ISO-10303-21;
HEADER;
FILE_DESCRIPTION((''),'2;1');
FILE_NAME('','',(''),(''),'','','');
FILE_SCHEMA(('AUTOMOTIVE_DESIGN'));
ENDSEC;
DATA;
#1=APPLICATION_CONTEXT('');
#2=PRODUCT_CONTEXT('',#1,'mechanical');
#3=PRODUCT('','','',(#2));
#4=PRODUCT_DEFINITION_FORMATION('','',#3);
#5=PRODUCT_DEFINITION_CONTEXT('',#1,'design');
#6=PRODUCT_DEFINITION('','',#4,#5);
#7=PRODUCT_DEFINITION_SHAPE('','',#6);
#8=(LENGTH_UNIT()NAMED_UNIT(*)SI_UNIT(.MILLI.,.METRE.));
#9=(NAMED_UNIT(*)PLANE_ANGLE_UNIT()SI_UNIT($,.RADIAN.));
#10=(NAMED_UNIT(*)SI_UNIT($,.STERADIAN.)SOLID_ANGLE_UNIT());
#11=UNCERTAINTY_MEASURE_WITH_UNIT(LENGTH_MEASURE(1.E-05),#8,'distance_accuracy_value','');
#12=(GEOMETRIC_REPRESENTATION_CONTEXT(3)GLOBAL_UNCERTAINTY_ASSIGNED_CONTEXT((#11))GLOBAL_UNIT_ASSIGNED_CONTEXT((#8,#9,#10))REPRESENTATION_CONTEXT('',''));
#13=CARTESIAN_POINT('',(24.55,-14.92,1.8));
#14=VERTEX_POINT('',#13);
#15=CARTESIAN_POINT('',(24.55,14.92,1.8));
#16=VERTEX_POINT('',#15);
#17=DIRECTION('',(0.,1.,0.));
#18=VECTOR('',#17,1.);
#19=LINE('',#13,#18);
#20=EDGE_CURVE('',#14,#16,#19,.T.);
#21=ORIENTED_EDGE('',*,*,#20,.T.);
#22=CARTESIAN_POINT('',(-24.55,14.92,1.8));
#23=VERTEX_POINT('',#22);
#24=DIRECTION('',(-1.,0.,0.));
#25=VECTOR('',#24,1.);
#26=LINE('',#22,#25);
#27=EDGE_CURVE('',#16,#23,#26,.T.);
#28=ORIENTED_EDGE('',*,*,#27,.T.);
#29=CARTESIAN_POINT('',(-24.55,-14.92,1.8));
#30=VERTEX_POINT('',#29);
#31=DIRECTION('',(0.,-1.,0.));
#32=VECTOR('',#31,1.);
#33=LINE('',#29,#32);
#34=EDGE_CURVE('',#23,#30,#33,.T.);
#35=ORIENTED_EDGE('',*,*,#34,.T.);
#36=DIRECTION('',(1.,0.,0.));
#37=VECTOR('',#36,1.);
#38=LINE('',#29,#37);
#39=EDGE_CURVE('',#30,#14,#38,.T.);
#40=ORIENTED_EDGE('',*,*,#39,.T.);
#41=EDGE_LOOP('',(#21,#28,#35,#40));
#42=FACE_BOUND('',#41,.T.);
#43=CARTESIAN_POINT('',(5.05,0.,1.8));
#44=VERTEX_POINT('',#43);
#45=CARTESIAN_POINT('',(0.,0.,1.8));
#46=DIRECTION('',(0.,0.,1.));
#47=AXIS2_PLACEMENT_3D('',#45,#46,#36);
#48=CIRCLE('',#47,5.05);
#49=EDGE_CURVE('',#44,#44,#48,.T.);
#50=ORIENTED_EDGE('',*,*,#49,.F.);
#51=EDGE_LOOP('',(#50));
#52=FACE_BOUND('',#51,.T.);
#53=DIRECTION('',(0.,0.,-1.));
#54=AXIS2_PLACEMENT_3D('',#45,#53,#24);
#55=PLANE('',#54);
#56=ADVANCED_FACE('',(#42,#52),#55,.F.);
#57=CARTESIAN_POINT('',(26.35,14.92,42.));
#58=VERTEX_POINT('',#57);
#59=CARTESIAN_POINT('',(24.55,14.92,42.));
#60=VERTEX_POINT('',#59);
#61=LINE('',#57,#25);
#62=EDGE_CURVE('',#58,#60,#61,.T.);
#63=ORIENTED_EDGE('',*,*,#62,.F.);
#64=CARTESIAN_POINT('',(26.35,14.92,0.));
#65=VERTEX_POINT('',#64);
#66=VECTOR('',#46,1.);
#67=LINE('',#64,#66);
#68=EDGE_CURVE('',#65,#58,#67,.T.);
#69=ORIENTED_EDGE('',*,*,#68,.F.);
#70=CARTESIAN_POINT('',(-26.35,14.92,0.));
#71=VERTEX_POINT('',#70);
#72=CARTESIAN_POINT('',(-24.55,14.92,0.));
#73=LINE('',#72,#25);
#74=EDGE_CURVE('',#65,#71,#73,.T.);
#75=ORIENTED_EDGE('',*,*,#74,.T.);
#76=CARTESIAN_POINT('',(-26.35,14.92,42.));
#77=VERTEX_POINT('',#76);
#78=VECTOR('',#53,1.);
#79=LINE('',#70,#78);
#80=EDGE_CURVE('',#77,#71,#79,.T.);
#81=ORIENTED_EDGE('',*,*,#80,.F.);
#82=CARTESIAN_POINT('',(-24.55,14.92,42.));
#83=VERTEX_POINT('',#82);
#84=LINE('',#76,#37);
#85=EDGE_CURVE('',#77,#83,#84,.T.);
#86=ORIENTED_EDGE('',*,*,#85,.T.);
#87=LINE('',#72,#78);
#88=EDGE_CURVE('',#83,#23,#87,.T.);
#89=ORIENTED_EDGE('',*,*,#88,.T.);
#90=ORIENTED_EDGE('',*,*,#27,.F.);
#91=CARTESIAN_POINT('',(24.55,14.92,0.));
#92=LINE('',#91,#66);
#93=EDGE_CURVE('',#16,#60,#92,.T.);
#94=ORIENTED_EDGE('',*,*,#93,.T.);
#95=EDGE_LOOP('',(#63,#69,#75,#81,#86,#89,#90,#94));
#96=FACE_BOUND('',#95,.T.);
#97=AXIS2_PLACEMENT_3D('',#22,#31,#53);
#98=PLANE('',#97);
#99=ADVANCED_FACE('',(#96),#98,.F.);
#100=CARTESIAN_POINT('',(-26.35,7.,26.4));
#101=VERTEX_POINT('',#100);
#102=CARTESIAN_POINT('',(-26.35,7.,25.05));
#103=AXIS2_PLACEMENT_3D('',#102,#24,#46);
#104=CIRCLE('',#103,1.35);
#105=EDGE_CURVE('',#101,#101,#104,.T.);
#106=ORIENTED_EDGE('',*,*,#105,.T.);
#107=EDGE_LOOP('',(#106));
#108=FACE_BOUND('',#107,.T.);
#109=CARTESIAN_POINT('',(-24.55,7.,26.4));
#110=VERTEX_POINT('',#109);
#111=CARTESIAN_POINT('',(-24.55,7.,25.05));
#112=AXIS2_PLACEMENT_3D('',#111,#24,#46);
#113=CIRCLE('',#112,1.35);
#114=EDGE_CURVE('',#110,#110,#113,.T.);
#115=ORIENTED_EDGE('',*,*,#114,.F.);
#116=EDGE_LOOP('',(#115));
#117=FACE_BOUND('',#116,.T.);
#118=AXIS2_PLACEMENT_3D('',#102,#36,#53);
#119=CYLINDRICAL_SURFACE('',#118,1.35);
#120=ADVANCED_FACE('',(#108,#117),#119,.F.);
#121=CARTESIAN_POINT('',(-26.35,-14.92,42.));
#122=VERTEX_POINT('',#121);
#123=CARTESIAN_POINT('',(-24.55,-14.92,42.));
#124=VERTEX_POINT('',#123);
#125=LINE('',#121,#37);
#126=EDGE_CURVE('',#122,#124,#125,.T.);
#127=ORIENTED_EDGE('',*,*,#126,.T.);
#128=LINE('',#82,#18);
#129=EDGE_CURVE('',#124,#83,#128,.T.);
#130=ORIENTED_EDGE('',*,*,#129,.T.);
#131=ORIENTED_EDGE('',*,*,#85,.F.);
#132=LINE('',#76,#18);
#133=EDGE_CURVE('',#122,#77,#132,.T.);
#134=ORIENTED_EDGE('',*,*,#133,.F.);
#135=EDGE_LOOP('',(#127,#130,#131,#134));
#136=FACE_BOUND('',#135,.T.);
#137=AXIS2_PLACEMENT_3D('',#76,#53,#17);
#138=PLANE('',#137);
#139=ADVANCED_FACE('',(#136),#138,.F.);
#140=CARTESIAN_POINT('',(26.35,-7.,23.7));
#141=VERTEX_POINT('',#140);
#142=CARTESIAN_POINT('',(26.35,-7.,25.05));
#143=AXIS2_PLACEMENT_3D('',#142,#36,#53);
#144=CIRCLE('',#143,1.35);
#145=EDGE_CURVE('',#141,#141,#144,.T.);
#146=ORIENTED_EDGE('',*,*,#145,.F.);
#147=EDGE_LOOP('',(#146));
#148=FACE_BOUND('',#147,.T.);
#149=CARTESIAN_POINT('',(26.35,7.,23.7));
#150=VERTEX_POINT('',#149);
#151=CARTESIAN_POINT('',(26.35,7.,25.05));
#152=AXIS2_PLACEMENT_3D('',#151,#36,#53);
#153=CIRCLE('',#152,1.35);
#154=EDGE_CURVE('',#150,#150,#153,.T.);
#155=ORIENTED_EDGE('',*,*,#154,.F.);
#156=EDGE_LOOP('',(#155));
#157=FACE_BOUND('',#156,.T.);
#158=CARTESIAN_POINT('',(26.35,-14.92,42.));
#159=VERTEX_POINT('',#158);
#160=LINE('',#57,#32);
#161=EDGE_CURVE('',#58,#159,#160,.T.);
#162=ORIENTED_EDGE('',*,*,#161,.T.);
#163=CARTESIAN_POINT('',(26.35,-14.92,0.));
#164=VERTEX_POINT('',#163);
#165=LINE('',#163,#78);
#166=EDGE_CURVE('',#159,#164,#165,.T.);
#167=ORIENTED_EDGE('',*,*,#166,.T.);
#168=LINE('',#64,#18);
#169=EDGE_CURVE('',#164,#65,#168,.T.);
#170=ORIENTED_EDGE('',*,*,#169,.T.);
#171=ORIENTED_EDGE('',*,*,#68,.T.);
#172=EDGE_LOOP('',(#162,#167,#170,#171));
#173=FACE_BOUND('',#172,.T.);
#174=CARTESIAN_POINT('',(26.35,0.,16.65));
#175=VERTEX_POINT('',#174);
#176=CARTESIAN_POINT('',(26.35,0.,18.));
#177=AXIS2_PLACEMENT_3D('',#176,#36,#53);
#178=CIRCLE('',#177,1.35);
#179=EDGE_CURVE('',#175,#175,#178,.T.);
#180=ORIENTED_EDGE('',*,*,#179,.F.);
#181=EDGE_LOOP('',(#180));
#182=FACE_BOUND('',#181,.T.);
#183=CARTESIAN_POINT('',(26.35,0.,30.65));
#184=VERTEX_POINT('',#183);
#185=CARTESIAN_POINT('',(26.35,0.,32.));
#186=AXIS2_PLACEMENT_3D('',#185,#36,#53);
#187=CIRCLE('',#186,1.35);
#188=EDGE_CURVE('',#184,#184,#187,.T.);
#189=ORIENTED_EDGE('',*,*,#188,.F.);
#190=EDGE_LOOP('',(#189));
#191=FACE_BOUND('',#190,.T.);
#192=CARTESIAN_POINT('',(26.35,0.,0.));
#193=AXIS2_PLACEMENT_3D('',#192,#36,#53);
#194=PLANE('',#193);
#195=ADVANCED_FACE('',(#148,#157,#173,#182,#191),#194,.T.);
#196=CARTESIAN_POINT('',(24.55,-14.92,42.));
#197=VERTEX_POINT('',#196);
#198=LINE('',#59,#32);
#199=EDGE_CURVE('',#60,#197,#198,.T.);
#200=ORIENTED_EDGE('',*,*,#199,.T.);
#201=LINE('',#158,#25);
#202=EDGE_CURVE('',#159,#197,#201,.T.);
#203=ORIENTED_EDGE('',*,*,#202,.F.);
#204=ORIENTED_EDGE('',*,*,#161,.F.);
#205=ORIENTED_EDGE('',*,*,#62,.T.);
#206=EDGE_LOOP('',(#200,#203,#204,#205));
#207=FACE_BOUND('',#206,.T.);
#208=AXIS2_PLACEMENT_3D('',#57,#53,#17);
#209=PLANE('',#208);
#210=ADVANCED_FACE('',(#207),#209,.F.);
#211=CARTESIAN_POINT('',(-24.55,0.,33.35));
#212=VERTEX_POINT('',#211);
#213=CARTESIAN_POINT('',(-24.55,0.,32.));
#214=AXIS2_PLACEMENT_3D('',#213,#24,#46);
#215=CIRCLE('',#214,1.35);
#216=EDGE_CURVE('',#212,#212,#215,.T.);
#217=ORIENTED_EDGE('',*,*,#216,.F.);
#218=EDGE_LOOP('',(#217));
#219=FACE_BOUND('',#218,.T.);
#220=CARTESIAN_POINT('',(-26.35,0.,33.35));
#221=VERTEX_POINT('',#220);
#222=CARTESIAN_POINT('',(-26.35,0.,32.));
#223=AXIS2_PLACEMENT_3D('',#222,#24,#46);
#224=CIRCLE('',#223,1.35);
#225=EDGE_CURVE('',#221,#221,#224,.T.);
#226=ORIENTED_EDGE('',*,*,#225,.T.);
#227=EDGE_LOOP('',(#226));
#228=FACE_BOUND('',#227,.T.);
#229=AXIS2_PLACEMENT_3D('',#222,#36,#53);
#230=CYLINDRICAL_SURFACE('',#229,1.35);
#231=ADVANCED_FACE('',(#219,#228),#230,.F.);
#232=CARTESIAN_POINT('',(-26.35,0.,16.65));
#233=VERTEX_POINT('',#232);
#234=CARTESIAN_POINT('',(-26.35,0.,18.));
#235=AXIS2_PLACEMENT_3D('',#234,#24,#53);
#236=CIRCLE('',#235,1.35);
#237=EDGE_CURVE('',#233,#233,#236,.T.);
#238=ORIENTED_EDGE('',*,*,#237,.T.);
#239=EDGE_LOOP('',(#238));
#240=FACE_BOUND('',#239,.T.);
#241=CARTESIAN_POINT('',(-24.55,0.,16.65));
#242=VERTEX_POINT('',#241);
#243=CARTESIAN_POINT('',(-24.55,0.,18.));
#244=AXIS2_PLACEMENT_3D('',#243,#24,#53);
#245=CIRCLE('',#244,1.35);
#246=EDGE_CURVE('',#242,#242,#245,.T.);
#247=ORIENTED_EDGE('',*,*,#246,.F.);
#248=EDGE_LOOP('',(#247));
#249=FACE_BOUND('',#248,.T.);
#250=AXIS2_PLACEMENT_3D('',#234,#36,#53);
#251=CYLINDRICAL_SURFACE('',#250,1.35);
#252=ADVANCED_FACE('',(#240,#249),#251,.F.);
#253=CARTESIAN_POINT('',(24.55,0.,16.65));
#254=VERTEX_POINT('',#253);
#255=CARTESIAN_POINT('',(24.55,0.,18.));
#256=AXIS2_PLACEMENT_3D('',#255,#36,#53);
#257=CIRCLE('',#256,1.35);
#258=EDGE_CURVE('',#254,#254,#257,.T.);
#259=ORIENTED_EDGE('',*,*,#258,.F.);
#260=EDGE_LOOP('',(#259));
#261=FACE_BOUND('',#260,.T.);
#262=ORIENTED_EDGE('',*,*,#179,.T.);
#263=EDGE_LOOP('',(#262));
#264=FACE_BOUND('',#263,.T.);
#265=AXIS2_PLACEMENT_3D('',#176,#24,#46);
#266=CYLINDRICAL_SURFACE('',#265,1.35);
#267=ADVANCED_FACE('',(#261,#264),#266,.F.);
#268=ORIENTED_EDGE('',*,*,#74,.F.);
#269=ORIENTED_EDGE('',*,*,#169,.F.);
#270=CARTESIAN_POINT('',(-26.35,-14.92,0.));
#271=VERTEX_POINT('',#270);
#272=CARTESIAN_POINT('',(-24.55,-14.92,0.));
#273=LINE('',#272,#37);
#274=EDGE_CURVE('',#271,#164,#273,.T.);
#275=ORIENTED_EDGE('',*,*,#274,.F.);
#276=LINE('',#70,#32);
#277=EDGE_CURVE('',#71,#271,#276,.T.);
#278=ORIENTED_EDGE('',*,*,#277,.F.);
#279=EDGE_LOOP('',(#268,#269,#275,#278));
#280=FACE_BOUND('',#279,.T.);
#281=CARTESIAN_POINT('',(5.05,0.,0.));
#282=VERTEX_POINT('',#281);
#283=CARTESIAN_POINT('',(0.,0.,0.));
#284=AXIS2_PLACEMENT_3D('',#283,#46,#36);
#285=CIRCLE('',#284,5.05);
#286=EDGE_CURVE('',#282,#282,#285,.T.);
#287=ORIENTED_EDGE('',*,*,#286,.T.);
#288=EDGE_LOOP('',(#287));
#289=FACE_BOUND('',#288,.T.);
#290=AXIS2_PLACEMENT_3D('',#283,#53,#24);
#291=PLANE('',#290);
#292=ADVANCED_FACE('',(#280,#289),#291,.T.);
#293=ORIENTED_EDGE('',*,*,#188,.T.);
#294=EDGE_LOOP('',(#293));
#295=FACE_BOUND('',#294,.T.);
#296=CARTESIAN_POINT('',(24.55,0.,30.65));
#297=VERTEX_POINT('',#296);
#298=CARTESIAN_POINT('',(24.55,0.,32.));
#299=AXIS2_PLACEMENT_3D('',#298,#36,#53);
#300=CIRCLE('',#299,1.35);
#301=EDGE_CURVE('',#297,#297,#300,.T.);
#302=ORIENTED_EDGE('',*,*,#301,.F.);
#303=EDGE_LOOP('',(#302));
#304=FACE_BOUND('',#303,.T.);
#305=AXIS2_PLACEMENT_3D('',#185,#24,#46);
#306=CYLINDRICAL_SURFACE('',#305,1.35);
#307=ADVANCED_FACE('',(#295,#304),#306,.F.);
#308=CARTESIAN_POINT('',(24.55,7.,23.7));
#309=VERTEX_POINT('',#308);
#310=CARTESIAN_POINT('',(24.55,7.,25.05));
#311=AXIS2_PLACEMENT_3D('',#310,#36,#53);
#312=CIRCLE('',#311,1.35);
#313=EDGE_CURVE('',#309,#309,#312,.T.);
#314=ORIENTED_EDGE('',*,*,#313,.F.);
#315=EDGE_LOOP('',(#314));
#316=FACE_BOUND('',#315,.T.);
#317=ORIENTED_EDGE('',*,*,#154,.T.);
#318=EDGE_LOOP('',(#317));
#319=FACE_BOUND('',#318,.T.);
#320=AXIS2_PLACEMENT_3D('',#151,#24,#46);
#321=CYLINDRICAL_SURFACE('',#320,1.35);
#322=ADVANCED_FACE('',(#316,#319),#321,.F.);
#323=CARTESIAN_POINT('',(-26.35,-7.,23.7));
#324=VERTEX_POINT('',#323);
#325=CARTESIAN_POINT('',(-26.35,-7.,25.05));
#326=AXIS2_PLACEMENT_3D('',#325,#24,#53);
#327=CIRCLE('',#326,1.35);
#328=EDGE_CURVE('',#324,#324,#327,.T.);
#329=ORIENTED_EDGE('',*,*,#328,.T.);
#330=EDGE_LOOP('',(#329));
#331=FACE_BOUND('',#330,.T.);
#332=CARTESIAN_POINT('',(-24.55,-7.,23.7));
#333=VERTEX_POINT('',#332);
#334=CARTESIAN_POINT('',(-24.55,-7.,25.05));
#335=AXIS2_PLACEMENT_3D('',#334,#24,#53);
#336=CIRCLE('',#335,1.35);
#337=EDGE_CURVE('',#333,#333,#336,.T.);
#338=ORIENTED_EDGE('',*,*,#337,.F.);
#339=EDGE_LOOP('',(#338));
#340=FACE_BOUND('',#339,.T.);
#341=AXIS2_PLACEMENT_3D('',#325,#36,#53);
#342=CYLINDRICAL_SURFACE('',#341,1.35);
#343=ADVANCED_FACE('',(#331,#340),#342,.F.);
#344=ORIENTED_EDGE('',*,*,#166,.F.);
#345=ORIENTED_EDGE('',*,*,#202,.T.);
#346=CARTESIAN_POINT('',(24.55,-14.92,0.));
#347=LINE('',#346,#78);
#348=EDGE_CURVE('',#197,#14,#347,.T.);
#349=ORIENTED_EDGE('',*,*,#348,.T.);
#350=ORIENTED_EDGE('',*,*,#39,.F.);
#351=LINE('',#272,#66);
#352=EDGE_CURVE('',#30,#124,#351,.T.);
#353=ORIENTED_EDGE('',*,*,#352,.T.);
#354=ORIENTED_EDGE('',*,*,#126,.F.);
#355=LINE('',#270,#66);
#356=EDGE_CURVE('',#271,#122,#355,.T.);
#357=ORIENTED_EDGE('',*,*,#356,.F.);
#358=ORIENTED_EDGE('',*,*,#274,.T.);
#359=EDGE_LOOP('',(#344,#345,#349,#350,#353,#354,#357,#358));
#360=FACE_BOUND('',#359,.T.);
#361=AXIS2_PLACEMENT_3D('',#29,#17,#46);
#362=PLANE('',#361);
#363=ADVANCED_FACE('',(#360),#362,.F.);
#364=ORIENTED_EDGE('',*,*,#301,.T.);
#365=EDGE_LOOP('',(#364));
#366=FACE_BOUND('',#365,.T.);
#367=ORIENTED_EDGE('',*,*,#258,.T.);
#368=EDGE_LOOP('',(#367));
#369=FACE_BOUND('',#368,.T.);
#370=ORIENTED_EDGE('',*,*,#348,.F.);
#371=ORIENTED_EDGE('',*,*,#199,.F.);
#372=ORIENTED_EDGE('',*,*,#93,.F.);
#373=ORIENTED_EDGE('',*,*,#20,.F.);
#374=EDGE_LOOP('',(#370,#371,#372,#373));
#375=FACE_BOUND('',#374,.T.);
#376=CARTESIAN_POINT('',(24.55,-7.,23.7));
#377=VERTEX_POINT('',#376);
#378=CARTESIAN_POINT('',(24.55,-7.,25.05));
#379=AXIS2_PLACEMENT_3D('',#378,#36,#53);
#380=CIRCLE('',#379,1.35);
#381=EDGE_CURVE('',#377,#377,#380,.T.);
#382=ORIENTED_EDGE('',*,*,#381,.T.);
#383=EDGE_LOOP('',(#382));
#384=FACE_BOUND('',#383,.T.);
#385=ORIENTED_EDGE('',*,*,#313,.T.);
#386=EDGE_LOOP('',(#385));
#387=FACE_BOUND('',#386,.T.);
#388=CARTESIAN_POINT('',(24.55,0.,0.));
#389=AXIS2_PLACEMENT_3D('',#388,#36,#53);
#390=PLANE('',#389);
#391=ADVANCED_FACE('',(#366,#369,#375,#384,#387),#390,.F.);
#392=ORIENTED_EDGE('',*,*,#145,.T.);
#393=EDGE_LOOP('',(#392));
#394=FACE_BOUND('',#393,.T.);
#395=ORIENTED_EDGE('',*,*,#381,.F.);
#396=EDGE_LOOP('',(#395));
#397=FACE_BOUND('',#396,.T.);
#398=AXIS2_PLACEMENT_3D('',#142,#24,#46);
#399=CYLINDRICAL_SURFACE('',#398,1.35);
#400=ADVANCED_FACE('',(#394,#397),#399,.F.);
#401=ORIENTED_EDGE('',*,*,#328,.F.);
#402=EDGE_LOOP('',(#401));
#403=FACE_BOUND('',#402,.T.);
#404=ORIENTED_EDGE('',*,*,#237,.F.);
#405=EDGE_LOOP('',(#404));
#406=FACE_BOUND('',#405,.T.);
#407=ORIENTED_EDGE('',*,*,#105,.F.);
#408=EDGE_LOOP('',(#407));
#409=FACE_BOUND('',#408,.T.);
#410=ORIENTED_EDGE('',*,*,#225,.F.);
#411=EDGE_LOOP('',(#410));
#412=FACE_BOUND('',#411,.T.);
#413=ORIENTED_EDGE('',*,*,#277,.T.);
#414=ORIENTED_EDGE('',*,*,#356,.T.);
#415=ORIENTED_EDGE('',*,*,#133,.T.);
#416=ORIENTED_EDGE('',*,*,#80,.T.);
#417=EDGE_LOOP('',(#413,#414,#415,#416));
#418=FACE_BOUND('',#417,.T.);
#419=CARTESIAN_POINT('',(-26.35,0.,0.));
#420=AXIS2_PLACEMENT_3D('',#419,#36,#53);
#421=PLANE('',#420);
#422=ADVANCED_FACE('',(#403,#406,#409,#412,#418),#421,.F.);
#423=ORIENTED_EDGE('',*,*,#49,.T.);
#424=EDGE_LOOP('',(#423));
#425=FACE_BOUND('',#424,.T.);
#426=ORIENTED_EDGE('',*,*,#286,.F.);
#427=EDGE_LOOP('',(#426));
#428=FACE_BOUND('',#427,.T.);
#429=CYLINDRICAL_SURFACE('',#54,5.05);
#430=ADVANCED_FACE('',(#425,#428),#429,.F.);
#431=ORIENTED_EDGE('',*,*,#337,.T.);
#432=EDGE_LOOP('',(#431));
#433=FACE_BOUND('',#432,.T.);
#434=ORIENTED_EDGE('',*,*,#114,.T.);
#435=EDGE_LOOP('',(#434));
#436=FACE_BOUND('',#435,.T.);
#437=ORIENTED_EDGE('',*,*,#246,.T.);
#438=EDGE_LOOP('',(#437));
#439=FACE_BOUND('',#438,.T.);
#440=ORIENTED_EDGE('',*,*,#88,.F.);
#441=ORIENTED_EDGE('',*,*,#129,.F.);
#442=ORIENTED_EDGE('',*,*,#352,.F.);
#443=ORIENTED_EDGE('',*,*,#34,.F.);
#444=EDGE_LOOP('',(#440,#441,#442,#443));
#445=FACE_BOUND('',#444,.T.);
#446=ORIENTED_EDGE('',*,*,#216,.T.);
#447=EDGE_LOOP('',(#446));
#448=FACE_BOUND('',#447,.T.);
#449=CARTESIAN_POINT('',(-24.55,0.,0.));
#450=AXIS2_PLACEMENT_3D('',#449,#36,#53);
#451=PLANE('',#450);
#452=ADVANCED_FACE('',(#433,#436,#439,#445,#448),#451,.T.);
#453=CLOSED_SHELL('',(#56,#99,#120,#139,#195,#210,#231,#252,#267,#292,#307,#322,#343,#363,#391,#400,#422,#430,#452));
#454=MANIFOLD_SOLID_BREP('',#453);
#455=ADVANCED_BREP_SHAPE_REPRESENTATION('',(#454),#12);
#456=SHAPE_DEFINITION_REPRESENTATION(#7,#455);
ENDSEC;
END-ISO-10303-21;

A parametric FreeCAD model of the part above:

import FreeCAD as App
import Part
import Sketcher

doc = App.newDocument("Part")
body = doc.addObject("PartDesign::Body", "Body")

# Sketch on XY plane
sketch1 = body.newObject("Sketcher::SketchObject", "Sketch")
sketch1.AttachmentSupport = (doc.getObject("XY_Plane"), [""])
sketch1.MapMode = "FlatFace"
sketch1.addGeometry([
    Part.LineSegment(App.Vector(-25, 15, 0), App.Vector(-25, -15, 0)),  # 0
    Part.LineSegment(App.Vector(-25, -15, 0), App.Vector(25, -15, 0)),  # 1
    Part.LineSegment(App.Vector(25, -15, 0), App.Vector(25, 15, 0)),  # 2
    Part.LineSegment(App.Vector(25, 15, 0), App.Vector(-25, 15, 0)),  # 3
    Part.Circle(App.Vector(0, 0, 0), App.Vector(0, 0, 1), 5),  # 4
], False)
sketch1.addConstraint([
    Sketcher.Constraint("Coincident", 0, 2, 1, 1),
    Sketcher.Constraint("Coincident", 1, 2, 2, 1),
    Sketcher.Constraint("Coincident", 2, 2, 3, 1),
    Sketcher.Constraint("Coincident", 3, 2, 0, 1),
    Sketcher.Constraint("Vertical", 0),
    Sketcher.Constraint("Horizontal", 1),
    Sketcher.Constraint("Vertical", 2),
    Sketcher.Constraint("Horizontal", 3),
    Sketcher.Constraint("Coincident", 4, 3, -1, 1),
    Sketcher.Constraint("Symmetric", 0, 2, 2, 2, -1, 1),
    Sketcher.Constraint("Diameter", 4, 10.1),
    Sketcher.Constraint("DistanceX", 1, 1, 1, 2, 49.1),
    Sketcher.Constraint("DistanceY", 0, 2, 0, 1, 29.84),
])
pad1 = body.newObject("PartDesign::Pad", "Pad")
pad1.Profile = sketch1
pad1.Length = 1.8

# Sketch on YZ plane
sketch2 = body.newObject("Sketcher::SketchObject", "Sketch001")
sketch2.AttachmentSupport = (doc.getObject("YZ_Plane"), [""])
sketch2.MapMode = "FlatFace"
sketch2.AttachmentOffset = App.Placement(App.Vector(0, 0, -24.55), App.Rotation())
sketch2.addGeometry([
    Part.LineSegment(App.Vector(14.9, 0, 0), App.Vector(-14.9, 0, 0)),  # 0
    Part.LineSegment(App.Vector(-14.9, 0, 0), App.Vector(-14.9, 42, 0)),  # 1
    Part.LineSegment(App.Vector(-14.9, 42, 0), App.Vector(14.9, 42, 0)),  # 2
    Part.LineSegment(App.Vector(14.9, 42, 0), App.Vector(14.9, 0, 0)),  # 3
    Part.Circle(App.Vector(-7, 25.1, 0), App.Vector(0, 0, 1), 1.4),  # 4
    Part.Circle(App.Vector(0, 18, 0), App.Vector(0, 0, 1), 1.4),  # 5
    Part.Circle(App.Vector(0, 32, 0), App.Vector(0, 0, 1), 1.4),  # 6
    Part.Circle(App.Vector(7, 25.1, 0), App.Vector(0, 0, 1), 1.4),  # 7
], False)
sketch2.addConstraint([
    Sketcher.Constraint("Coincident", 0, 2, 1, 1),
    Sketcher.Constraint("Coincident", 1, 2, 2, 1),
    Sketcher.Constraint("Coincident", 2, 2, 3, 1),
    Sketcher.Constraint("Coincident", 3, 2, 0, 1),
    Sketcher.Constraint("Horizontal", 0),
    Sketcher.Constraint("Vertical", 1),
    Sketcher.Constraint("Horizontal", 2),
    Sketcher.Constraint("Vertical", 3),
    Sketcher.Constraint("Equal", 4, 5),
    Sketcher.Constraint("Equal", 5, 6),
    Sketcher.Constraint("Equal", 6, 7),
    Sketcher.Constraint("Symmetric", 0, 2, 3, 2, -1, 1),
    Sketcher.Constraint("Symmetric", 4, 3, 7, 3, -2),
    Sketcher.Constraint("PointOnObject", 5, 3, -2),
    Sketcher.Constraint("PointOnObject", 6, 3, -2),
    Sketcher.Constraint("Diameter", 4, 2.7),
    Sketcher.Constraint("DistanceY", 1, 1, 1, 2, 42.0),
    Sketcher.Constraint("DistanceX", 4, 3, -1, 1, 7.0),
    Sketcher.Constraint("DistanceY", -1, 1, 5, 3, 18.0),
    Sketcher.Constraint("DistanceY", -1, 1, 6, 3, 32.0),
    Sketcher.Constraint("DistanceX", 0, 2, 0, 1, 29.84),
    Sketcher.Constraint("DistanceY", -1, 1, 4, 3, 25.05),
])
pad2 = body.newObject("PartDesign::Pad", "Pad001")
pad2.Profile = sketch2
pad2.Length = 1.8
pad2.Reversed = True

# Sketch on YZ plane
sketch3 = body.newObject("Sketcher::SketchObject", "Sketch002")
sketch3.AttachmentSupport = (doc.getObject("YZ_Plane"), [""])
sketch3.MapMode = "FlatFace"
sketch3.AttachmentOffset = App.Placement(App.Vector(0, 0, 26.35), App.Rotation())
sketch3.addGeometry([
    Part.LineSegment(App.Vector(14.9, 42, 0), App.Vector(-14.9, 42, 0)),  # 0
    Part.LineSegment(App.Vector(-14.9, 42, 0), App.Vector(-14.9, 0, 0)),  # 1
    Part.LineSegment(App.Vector(-14.9, 0, 0), App.Vector(14.9, 0, 0)),  # 2
    Part.LineSegment(App.Vector(14.9, 0, 0), App.Vector(14.9, 42, 0)),  # 3
    Part.Circle(App.Vector(-7, 25.1, 0), App.Vector(0, 0, 1), 1.4),  # 4
    Part.Circle(App.Vector(0, 32, 0), App.Vector(0, 0, 1), 1.4),  # 5
    Part.Circle(App.Vector(7, 25.1, 0), App.Vector(0, 0, 1), 1.4),  # 6
    Part.Circle(App.Vector(0, 18, 0), App.Vector(0, 0, 1), 1.4),  # 7
], False)
sketch3.addConstraint([
    Sketcher.Constraint("Coincident", 0, 2, 1, 1),
    Sketcher.Constraint("Coincident", 1, 2, 2, 1),
    Sketcher.Constraint("Coincident", 2, 2, 3, 1),
    Sketcher.Constraint("Coincident", 3, 2, 0, 1),
    Sketcher.Constraint("Horizontal", 0),
    Sketcher.Constraint("Vertical", 1),
    Sketcher.Constraint("Horizontal", 2),
    Sketcher.Constraint("Vertical", 3),
    Sketcher.Constraint("Equal", 4, 5),
    Sketcher.Constraint("Equal", 5, 6),
    Sketcher.Constraint("Equal", 6, 7),
    Sketcher.Constraint("Symmetric", 1, 2, 2, 2, -1, 1),
    Sketcher.Constraint("Symmetric", 4, 3, 6, 3, -2),
    Sketcher.Constraint("PointOnObject", 5, 3, -2),
    Sketcher.Constraint("PointOnObject", 7, 3, -2),
    Sketcher.Constraint("Diameter", 4, 2.7),
    Sketcher.Constraint("DistanceY", 1, 2, 1, 1, 42.0),
    Sketcher.Constraint("DistanceX", 4, 3, -1, 1, 7.0),
    Sketcher.Constraint("DistanceY", -1, 1, 5, 3, 32.0),
    Sketcher.Constraint("DistanceY", -1, 1, 7, 3, 18.0),
    Sketcher.Constraint("DistanceX", 0, 2, 0, 1, 29.84),
    Sketcher.Constraint("DistanceY", -1, 1, 4, 3, 25.05),
])
pad3 = body.newObject("PartDesign::Pad", "Pad002")
pad3.Profile = sketch3
pad3.Length = 1.8
pad3.Reversed = True

doc.recompute()
